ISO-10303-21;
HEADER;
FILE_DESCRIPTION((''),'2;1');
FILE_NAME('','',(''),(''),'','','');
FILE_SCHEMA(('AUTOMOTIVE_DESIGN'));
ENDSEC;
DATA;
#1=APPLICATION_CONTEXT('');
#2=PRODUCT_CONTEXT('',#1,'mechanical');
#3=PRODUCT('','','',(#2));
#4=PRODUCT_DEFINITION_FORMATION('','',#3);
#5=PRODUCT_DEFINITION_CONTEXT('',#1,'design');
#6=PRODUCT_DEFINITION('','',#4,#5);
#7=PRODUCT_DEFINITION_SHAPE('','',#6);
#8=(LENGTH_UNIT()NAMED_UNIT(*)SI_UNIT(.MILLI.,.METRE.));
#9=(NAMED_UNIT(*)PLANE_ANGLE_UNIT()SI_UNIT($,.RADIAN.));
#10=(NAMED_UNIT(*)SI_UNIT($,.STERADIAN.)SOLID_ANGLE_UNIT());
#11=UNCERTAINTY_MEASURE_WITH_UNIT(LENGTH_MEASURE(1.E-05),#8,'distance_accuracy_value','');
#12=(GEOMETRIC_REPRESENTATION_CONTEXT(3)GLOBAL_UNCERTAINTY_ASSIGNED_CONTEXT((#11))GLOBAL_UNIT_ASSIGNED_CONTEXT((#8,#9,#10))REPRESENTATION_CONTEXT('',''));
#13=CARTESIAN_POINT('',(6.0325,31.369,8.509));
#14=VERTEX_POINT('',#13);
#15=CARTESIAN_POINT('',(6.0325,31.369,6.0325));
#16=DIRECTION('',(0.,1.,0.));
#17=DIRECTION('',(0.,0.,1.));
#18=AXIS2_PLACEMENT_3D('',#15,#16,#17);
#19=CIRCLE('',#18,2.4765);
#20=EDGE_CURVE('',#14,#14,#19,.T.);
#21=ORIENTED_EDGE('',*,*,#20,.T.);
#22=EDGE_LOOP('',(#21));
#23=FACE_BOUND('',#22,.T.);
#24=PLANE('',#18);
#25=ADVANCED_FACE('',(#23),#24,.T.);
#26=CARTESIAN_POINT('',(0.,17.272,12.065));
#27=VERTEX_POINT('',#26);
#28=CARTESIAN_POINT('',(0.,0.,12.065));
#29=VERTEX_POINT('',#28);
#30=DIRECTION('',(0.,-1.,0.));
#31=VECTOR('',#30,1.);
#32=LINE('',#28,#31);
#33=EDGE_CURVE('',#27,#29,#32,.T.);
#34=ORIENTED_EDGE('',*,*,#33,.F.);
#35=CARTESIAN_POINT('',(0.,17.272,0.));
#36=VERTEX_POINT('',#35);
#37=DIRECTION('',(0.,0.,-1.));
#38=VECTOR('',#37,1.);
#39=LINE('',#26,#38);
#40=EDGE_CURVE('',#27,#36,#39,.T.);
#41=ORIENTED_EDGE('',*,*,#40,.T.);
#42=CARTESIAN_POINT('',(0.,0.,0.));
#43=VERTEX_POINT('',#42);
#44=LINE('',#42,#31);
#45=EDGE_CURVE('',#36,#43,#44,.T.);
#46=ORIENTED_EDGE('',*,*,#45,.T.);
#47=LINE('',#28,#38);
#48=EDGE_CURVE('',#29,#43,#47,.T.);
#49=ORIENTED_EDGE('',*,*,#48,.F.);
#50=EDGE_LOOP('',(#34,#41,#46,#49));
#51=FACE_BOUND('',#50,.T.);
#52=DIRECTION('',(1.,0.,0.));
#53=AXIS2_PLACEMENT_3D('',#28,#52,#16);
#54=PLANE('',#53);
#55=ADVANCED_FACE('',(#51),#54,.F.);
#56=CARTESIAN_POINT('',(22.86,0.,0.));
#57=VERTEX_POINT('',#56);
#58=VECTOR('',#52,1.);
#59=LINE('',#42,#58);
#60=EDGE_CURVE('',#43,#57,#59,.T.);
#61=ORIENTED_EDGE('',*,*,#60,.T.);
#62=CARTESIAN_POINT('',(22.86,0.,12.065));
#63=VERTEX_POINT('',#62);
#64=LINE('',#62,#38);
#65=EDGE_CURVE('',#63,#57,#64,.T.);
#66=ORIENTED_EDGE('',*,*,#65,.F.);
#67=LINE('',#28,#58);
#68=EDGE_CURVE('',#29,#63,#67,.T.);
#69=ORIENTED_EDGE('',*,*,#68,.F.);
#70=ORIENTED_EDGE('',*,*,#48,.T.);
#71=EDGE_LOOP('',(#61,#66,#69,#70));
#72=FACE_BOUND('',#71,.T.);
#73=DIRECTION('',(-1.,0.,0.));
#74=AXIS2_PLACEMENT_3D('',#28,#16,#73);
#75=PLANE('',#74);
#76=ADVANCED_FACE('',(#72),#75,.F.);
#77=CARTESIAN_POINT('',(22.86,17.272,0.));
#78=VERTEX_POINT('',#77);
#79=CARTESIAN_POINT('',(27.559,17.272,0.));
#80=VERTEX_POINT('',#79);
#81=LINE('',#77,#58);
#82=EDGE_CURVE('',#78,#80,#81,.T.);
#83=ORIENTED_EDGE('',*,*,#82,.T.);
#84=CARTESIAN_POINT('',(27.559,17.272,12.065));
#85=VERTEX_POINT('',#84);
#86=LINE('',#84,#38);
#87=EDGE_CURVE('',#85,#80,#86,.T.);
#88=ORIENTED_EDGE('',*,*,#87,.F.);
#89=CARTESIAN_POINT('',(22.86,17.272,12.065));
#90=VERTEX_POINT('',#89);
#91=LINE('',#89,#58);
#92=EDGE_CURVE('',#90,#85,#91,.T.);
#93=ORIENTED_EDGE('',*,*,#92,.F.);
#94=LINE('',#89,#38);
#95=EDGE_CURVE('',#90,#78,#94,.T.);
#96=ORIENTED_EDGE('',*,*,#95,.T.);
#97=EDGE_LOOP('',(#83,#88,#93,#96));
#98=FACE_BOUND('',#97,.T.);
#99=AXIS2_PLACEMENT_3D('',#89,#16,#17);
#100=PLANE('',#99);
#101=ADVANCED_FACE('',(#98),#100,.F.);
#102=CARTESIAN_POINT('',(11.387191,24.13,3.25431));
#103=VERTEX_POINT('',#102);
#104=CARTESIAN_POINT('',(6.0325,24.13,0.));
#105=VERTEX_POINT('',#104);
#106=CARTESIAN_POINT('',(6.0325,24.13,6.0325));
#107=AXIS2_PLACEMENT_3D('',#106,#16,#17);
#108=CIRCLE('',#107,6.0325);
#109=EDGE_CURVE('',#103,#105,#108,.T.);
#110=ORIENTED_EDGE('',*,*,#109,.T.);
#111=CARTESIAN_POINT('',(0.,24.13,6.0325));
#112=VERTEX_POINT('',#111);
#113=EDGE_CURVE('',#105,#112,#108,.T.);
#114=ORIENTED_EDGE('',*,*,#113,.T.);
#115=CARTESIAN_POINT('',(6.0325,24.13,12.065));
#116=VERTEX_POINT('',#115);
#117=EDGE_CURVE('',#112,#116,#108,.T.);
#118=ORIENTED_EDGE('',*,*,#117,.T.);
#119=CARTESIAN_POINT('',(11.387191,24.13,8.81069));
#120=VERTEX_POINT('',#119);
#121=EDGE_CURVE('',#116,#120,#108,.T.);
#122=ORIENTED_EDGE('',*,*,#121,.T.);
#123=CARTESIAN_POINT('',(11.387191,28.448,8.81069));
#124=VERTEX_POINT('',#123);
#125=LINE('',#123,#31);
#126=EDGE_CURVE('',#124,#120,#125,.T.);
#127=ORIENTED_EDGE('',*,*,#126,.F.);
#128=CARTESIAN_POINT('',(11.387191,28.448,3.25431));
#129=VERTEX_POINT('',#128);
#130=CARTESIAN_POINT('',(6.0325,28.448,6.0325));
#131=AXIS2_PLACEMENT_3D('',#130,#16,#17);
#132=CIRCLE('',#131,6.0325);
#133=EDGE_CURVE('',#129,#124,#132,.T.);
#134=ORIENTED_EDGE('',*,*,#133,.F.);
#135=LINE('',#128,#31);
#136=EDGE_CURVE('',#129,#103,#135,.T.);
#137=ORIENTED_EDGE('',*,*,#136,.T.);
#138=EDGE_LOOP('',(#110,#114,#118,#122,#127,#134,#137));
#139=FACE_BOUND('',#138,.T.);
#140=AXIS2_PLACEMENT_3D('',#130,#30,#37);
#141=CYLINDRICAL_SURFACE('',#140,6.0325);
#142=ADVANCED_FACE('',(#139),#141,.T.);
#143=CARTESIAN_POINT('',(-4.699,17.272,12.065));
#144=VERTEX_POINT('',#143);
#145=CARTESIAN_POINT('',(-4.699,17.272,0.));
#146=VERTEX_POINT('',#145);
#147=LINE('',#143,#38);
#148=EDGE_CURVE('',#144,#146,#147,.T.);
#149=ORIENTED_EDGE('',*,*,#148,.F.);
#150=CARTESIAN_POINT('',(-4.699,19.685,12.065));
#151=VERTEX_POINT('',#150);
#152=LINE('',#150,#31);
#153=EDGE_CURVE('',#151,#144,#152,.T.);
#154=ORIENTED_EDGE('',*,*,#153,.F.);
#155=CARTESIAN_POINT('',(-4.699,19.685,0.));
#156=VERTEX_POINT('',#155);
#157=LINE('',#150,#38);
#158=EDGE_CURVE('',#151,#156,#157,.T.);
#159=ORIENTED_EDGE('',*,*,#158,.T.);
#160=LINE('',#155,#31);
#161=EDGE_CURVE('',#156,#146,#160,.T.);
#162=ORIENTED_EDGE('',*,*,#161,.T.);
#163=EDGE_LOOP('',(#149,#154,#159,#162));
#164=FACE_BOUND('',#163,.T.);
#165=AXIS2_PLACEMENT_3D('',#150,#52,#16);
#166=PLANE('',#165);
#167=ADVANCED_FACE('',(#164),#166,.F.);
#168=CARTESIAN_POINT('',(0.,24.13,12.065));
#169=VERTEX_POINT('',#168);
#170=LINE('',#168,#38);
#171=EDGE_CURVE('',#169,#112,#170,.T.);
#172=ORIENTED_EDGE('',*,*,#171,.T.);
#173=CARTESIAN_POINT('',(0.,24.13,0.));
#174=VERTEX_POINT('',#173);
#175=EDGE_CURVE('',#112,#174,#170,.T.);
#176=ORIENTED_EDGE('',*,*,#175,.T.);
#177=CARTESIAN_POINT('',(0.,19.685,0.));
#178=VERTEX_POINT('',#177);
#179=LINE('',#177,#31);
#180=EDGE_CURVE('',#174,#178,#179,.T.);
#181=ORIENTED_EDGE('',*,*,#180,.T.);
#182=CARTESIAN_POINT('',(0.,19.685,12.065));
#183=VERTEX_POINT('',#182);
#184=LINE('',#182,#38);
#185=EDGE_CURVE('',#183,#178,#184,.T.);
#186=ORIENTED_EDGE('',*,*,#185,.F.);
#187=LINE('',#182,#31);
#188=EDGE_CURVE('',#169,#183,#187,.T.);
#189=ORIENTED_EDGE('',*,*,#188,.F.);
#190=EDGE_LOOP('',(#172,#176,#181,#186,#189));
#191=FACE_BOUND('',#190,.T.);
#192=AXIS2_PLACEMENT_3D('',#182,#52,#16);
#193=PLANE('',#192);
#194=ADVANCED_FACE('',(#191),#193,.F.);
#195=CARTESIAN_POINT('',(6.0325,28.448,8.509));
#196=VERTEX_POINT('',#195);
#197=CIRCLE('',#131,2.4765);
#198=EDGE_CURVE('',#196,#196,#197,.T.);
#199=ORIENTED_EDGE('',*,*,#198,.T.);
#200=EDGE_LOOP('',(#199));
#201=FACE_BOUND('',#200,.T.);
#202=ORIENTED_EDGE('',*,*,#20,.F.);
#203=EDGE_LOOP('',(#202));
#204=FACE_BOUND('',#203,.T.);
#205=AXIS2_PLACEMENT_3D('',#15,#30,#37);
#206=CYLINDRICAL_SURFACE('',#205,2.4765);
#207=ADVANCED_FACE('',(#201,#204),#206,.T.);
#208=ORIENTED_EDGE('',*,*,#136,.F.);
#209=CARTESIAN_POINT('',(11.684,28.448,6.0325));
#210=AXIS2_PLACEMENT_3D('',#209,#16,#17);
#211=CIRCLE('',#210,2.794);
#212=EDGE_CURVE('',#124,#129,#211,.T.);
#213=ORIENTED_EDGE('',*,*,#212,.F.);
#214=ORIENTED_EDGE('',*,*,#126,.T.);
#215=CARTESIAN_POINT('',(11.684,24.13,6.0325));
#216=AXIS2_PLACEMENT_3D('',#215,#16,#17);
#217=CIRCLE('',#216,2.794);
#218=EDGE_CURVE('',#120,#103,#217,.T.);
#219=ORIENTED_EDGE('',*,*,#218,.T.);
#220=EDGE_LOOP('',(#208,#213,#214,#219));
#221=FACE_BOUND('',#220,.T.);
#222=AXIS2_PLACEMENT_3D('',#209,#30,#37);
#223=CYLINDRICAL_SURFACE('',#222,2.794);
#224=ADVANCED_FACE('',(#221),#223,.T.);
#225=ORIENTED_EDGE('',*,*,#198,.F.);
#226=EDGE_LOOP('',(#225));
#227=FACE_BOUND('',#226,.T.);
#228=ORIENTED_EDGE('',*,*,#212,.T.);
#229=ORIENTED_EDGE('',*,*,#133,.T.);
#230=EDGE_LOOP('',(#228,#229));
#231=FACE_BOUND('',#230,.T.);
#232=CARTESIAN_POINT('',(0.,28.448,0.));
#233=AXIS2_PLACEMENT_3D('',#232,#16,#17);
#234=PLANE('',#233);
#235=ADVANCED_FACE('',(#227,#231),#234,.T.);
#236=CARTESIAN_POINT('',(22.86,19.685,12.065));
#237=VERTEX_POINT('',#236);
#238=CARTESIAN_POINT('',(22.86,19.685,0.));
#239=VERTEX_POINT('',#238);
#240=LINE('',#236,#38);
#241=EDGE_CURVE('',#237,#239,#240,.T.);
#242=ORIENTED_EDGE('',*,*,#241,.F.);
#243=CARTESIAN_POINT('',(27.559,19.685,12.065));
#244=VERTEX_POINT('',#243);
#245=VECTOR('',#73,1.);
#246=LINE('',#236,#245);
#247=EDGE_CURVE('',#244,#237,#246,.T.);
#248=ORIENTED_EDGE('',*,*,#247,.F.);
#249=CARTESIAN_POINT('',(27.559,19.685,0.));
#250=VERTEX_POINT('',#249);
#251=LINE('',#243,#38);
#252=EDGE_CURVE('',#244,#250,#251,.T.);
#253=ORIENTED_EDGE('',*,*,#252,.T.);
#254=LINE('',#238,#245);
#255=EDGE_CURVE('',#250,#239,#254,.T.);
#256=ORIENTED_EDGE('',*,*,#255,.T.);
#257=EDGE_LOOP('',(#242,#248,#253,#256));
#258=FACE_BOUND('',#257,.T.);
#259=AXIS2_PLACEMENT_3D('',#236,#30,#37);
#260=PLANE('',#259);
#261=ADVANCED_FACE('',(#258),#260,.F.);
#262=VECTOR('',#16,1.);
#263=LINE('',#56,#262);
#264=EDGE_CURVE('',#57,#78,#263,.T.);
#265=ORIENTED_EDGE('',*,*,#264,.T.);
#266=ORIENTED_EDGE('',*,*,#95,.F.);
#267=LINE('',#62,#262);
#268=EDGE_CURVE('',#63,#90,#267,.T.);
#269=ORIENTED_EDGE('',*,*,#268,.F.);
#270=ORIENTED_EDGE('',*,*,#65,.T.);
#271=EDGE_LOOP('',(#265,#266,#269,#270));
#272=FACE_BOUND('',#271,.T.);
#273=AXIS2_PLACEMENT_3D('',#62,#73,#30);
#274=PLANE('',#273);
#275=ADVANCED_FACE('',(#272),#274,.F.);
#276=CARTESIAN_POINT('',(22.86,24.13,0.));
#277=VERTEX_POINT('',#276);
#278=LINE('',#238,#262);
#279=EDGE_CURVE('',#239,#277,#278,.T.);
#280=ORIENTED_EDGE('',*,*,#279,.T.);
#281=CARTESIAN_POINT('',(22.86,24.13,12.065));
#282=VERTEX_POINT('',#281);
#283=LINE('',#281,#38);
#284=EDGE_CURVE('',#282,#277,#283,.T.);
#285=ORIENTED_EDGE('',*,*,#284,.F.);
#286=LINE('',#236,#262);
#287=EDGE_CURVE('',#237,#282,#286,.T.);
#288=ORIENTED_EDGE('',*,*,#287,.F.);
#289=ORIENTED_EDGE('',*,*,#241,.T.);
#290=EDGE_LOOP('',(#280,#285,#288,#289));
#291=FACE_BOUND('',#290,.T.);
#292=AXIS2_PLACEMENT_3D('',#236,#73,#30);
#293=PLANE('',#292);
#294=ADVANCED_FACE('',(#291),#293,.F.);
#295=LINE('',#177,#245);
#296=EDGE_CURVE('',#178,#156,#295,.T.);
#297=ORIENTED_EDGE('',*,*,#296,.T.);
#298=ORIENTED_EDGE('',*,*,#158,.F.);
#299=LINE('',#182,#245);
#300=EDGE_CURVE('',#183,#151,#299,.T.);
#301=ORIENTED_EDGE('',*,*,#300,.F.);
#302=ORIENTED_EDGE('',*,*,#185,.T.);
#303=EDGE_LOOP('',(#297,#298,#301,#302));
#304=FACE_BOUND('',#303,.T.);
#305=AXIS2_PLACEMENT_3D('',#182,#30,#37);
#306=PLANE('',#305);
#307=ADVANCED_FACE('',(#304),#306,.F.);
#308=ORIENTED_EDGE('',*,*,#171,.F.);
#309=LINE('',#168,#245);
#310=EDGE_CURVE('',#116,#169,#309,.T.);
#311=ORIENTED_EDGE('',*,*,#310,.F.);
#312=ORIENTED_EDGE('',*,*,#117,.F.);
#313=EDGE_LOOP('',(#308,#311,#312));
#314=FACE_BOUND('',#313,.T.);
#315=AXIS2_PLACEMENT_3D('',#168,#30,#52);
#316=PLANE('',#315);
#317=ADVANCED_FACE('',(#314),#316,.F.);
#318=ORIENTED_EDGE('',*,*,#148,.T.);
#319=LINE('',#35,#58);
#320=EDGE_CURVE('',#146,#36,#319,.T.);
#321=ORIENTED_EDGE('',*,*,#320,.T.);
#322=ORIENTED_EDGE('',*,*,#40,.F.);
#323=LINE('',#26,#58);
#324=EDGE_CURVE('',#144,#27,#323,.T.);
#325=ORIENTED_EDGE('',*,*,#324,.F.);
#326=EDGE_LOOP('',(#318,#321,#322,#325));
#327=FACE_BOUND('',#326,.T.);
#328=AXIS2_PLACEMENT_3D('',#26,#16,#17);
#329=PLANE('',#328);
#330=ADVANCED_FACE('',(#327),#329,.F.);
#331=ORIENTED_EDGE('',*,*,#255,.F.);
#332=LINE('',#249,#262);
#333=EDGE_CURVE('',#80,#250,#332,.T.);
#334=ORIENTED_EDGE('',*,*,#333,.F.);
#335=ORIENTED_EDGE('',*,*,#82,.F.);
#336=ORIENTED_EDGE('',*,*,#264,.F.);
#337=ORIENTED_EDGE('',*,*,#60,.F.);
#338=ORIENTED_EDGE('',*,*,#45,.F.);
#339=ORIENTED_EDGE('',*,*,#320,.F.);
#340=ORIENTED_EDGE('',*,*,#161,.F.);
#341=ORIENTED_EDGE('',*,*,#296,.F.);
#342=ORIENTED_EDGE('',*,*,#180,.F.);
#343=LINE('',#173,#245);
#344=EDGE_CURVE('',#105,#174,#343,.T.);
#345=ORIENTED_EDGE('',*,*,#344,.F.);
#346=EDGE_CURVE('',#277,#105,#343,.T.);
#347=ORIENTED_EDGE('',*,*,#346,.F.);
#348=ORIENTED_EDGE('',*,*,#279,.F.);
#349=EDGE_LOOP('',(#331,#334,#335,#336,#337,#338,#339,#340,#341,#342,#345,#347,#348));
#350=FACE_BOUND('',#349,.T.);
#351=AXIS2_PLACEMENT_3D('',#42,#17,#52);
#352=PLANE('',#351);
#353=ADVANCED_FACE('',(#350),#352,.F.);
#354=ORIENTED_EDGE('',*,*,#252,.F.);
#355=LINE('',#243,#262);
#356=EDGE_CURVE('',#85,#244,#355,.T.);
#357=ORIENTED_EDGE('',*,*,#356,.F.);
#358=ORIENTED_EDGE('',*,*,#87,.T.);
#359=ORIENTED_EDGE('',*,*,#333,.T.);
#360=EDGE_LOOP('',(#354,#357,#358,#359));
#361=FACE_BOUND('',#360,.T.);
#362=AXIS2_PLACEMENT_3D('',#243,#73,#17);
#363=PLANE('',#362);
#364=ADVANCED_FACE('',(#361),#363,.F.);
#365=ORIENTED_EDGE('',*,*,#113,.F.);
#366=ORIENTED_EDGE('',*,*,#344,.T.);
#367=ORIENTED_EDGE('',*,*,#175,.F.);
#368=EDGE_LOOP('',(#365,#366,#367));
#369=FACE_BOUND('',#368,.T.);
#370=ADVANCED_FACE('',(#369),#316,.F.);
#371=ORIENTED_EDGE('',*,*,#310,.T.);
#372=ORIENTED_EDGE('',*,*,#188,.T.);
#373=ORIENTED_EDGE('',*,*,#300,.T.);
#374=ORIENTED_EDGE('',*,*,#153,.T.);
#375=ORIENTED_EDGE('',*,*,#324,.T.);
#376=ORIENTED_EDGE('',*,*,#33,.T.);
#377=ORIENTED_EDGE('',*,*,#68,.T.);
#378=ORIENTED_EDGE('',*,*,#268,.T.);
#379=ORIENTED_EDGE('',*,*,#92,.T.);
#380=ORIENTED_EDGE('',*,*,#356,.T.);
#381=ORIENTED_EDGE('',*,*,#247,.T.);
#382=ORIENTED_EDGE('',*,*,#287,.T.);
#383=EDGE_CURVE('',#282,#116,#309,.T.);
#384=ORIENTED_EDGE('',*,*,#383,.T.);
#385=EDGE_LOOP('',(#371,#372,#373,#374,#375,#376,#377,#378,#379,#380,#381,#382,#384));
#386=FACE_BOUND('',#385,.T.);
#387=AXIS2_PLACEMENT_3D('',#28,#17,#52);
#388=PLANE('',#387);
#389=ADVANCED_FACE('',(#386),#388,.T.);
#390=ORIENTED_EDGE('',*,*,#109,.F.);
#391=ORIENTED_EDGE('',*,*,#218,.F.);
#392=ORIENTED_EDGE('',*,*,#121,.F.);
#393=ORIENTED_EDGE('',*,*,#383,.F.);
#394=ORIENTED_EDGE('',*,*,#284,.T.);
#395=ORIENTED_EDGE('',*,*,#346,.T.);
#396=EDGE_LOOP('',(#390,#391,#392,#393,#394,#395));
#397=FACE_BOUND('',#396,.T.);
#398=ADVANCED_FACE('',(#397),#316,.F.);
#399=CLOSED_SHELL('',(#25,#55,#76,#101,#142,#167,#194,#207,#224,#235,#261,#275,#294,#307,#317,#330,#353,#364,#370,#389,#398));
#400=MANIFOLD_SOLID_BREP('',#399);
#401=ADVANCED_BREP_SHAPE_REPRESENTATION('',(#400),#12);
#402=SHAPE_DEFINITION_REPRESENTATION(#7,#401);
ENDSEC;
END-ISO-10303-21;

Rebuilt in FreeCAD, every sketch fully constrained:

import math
import FreeCAD as App
import Part
import Sketcher
Q = App.Units.Quantity

doc = App.newDocument("Part")
body = doc.addObject("PartDesign::Body", "Body")

sketch1 = body.newObject("Sketcher::SketchObject", "Sketch")
sketch1.AttachmentSupport = (doc.getObject("XY_Plane"), [""])
sketch1.MapMode = "FlatFace"
sketch1.addGeometry([
    Part.LineSegment(App.Vector(0, 0, 0), App.Vector(22.9, 0, 0)),
    Part.LineSegment(App.Vector(22.9, 0, 0), App.Vector(22.9, 17.3, 0)),
    Part.LineSegment(App.Vector(22.9, 17.3, 0), App.Vector(27.6, 17.3, 0)),
    Part.LineSegment(App.Vector(27.6, 17.3, 0), App.Vector(27.6, 19.7, 0)),
    Part.LineSegment(App.Vector(27.6, 19.7, 0), App.Vector(22.9, 19.7, 0)),
    Part.LineSegment(App.Vector(22.9, 19.7, 0), App.Vector(22.9, 24.1, 0)),
    Part.LineSegment(App.Vector(22.9, 24.1, 0), App.Vector(0, 24.1, 0)),
    Part.LineSegment(App.Vector(0, 24.1, 0), App.Vector(0, 19.7, 0)),
    Part.LineSegment(App.Vector(0, 19.7, 0), App.Vector(-4.7, 19.7, 0)),
    Part.LineSegment(App.Vector(-4.7, 19.7, 0), App.Vector(-4.7, 17.3, 0)),
    Part.LineSegment(App.Vector(-4.7, 17.3, 0), App.Vector(0, 17.3, 0)),
    Part.LineSegment(App.Vector(0, 17.3, 0), App.Vector(0, 0, 0)),
], False)
sketch1.addConstraint([
    Sketcher.Constraint("Coincident", 0, 2, 1, 1),
    Sketcher.Constraint("Coincident", 1, 2, 2, 1),
    Sketcher.Constraint("Coincident", 2, 2, 3, 1),
    Sketcher.Constraint("Coincident", 3, 2, 4, 1),
    Sketcher.Constraint("Coincident", 4, 2, 5, 1),
    Sketcher.Constraint("Coincident", 5, 2, 6, 1),
    Sketcher.Constraint("Coincident", 6, 2, 7, 1),
    Sketcher.Constraint("Coincident", 7, 2, 8, 1),
    Sketcher.Constraint("Coincident", 8, 2, 9, 1),
    Sketcher.Constraint("Coincident", 9, 2, 10, 1),
    Sketcher.Constraint("Coincident", 10, 2, 11, 1),
    Sketcher.Constraint("Coincident", 11, 2, 0, 1),
    Sketcher.Constraint("Horizontal", 0),
    Sketcher.Constraint("Vertical", 1),
    Sketcher.Constraint("Horizontal", 2),
    Sketcher.Constraint("Vertical", 3),
    Sketcher.Constraint("Horizontal", 4),
    Sketcher.Constraint("Vertical", 5),
    Sketcher.Constraint("Horizontal", 6),
    Sketcher.Constraint("Vertical", 7),
    Sketcher.Constraint("Horizontal", 8),
    Sketcher.Constraint("Vertical", 9),
    Sketcher.Constraint("Horizontal", 10),
    Sketcher.Constraint("Vertical", 11),
    Sketcher.Constraint("Coincident", 11, 2, -1, 1),
    Sketcher.Constraint("PointOnObject", 6, 2, -2),
    Sketcher.Constraint("Horizontal", 4, 2, 7, 2),
    Sketcher.Constraint("Horizontal", 2, 2, 9, 2),
    Sketcher.Constraint("Vertical", 1, 2, 4, 2),
    Sketcher.Constraint("Equal", 4, 8),
    Sketcher.Constraint("DistanceX", 0, 1, 0, 2, Q("0.9 in")),
    Sketcher.Constraint("DistanceY", 1, 1, 1, 2, Q("0.68 in")),
    Sketcher.Constraint("DistanceX", 2, 1, 2, 2, Q("0.185 in")),
    Sketcher.Constraint("DistanceY", 3, 1, 3, 2, Q("0.095 in")),
    Sketcher.Constraint("DistanceY", 5, 1, 5, 2, Q("0.175 in")),
])
pad1 = body.newObject("PartDesign::Pad", "Pad")
pad1.Profile = sketch1
pad1.Length = Q("0.475 in")

sketch2 = body.newObject("Sketcher::SketchObject", "Sketch001")
sketch2.AttachmentSupport = (doc.getObject("XZ_Plane"), [""])
sketch2.MapMode = "FlatFace"
sketch2.AttachmentOffset = App.Placement(App.Vector(0, 0, -0.95 * 25.4), App.Rotation())
sketch2.addGeometry([
    Part.ArcOfCircle(Part.Circle(App.Vector(11.7, 6, 0), App.Vector(0, 0, 1), 2.8), math.radians(-96), math.radians(96)),
    Part.ArcOfCircle(Part.Circle(App.Vector(6, 6, 0), App.Vector(0, 0, 1), 6), math.radians(27), math.radians(333)),
], False)
sketch2.addConstraint([
    Sketcher.Constraint("Coincident", 0, 1, 1, 2),
    Sketcher.Constraint("Coincident", 1, 1, 0, 2),
    Sketcher.Constraint("Horizontal", 0, 3, 1, 3),
    Sketcher.Constraint("Radius", 0, Q("0.11 in")),
    Sketcher.Constraint("Radius", 1, Q("0.2375 in")),
    Sketcher.Constraint("DistanceX", -1, 1, 0, 3, Q("0.46 in")),
    Sketcher.Constraint("DistanceY", -1, 1, 0, 3, Q("0.2375 in")),
    Sketcher.Constraint("DistanceX", -1, 1, 1, 3, Q("0.2375 in")),
])
pad2 = body.newObject("PartDesign::Pad", "Pad001")
pad2.Profile = sketch2
pad2.Length = Q("0.17 in")
pad2.Reversed = True

sketch3 = body.newObject("Sketcher::SketchObject", "Sketch002")
sketch3.AttachmentSupport = (doc.getObject("XZ_Plane"), [""])
sketch3.MapMode = "FlatFace"
sketch3.AttachmentOffset = App.Placement(App.Vector(0, 0, -1.12 * 25.4), App.Rotation())
sketch3.addGeometry(Part.Circle(App.Vector(6, 6, 0), App.Vector(0, 0, 1), 2.5), False)
sketch3.addConstraint([
    Sketcher.Constraint("Diameter", 0, Q("0.195 in")),
    Sketcher.Constraint("DistanceX", -1, 1, 0, 3, Q("0.2375 in")),
    Sketcher.Constraint("DistanceY", -1, 1, 0, 3, Q("0.2375 in")),
])
pad3 = body.newObject("PartDesign::Pad", "Pad002")
pad3.Profile = sketch3
pad3.Length = Q("0.115 in")
pad3.Reversed = True

doc.recompute()
